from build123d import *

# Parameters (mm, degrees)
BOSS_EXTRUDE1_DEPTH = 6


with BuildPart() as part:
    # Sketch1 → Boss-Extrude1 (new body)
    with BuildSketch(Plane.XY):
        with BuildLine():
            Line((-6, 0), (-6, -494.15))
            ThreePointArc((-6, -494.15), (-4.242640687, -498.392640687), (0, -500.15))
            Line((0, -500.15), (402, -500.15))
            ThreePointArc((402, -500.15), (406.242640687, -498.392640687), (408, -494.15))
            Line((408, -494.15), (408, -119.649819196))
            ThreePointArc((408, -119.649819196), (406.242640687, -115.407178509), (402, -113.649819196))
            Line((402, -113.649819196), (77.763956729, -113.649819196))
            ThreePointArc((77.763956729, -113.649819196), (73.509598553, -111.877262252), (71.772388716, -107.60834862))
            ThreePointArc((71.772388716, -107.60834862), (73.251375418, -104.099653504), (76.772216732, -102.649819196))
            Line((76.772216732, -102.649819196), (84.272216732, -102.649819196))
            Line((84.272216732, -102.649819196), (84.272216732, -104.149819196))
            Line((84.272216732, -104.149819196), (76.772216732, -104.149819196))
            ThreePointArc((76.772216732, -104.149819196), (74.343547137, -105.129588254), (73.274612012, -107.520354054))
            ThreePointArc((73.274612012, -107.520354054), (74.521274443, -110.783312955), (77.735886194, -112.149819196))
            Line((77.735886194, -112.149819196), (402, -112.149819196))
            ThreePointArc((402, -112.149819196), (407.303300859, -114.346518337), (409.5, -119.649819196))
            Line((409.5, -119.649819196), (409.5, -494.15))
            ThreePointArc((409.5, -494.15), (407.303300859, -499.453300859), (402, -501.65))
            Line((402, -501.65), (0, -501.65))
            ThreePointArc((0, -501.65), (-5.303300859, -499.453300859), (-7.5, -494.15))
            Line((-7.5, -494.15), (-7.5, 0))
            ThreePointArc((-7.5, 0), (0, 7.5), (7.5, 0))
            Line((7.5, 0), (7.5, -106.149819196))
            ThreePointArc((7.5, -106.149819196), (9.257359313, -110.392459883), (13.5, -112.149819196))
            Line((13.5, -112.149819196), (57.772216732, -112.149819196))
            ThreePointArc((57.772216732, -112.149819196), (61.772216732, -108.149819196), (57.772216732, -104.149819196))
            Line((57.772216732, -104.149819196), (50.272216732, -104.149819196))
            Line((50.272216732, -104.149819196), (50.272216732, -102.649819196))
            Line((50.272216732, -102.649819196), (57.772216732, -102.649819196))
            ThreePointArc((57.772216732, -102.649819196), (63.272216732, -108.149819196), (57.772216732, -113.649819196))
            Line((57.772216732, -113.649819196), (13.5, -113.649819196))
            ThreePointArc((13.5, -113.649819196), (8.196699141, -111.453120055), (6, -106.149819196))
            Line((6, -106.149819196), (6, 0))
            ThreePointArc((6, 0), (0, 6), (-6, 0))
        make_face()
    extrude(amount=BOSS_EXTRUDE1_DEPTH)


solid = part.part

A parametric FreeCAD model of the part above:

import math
import FreeCAD as App
import Part
import Sketcher

V = App.Vector

doc = App.newDocument("Part")
body = doc.addObject("PartDesign::Body", "Body")

sketch1 = body.newObject("Sketcher::SketchObject", "Sketch")
sketch1.AttachmentSupport = (doc.getObject("XY_Plane"), [""])
sketch1.MapMode = "FlatFace"
sketch1.addGeometry([
    Part.LineSegment(V(-6, -494.15, 0), V(-6, 0, 0)),
    Part.ArcOfCircle(Part.Circle(V(0, 0, 0), V(0, 0, 1), 6), math.radians(0), math.radians(180)),
    Part.LineSegment(V(6, 0, 0), V(6, -106.149819, 0)),
    Part.ArcOfCircle(Part.Circle(V(13.5, -106.149819, 0), V(0, 0, 1), 7.5), math.radians(180), math.radians(270)),
    Part.LineSegment(V(13.5, -113.649819, 0), V(57.772217, -113.649819, 0)),
    Part.ArcOfCircle(Part.Circle(V(57.772217, -108.149819, 0), V(0, 0, 1), 5.5), math.radians(-90), math.radians(90)),
    Part.LineSegment(V(57.772217, -102.649819, 0), V(50.272217, -102.649819, 0)),
    Part.LineSegment(V(50.272217, -102.649819, 0), V(50.272217, -104.149819, 0)),
    Part.LineSegment(V(50.272217, -104.149819, 0), V(57.772217, -104.149819, 0)),
    Part.ArcOfCircle(Part.Circle(V(57.772217, -108.149819, 0), V(0, 0, 1), 4), math.radians(-90), math.radians(90)),
    Part.LineSegment(V(57.772217, -112.149819, 0), V(13.5, -112.149819, 0)),
    Part.ArcOfCircle(Part.Circle(V(13.5, -106.149819, 0), V(0, 0, 1), 6), math.radians(180), math.radians(270)),
    Part.LineSegment(V(7.5, -106.149819, 0), V(7.5, 0, 0)),
    Part.ArcOfCircle(Part.Circle(V(0, 0, 0), V(0, 0, 1), 7.5), math.radians(0), math.radians(180)),
    Part.LineSegment(V(-7.5, 0, 0), V(-7.5, -494.15, 0)),
    Part.ArcOfCircle(Part.Circle(V(0, -494.15, 0), V(0, 0, 1), 7.5), math.radians(180), math.radians(270)),
    Part.LineSegment(V(0, -501.65, 0), V(402, -501.65, 0)),
    Part.ArcOfCircle(Part.Circle(V(402, -494.15, 0), V(0, 0, 1), 7.5), math.radians(-90), math.radians(0)),
    Part.LineSegment(V(409.5, -494.15, 0), V(409.5, -119.649819, 0)),
    Part.ArcOfCircle(Part.Circle(V(402, -119.649819, 0), V(0, 0, 1), 7.5), math.radians(0), math.radians(90)),
    Part.LineSegment(V(402, -112.149819, 0), V(77.735886, -112.149819, 0)),
    Part.ArcOfCircle(Part.Circle(V(77.735886, -107.68549, 0), V(0, 0, 1), 4.464329), math.radians(177.880143), math.radians(270)),
    Part.ArcOfCircle(Part.Circle(V(76.772217, -107.649819, 0), V(0, 0, 1), 3.5), math.radians(90), math.radians(177.880143)),
    Part.LineSegment(V(76.772217, -104.149819, 0), V(84.272217, -104.149819, 0)),
    Part.LineSegment(V(84.272217, -104.149819, 0), V(84.272217, -102.649819, 0)),
    Part.LineSegment(V(84.272217, -102.649819, 0), V(76.772217, -102.649819, 0)),
    Part.ArcOfCircle(Part.Circle(V(76.772217, -107.649819, 0), V(0, 0, 1), 5), math.radians(90), math.radians(179.524777)),
    Part.ArcOfCircle(Part.Circle(V(77.763957, -107.658045, 0), V(0, 0, 1), 5.991774), math.radians(179.524777), math.radians(270)),
    Part.LineSegment(V(77.763957, -113.649819, 0), V(402, -113.649819, 0)),
    Part.ArcOfCircle(Part.Circle(V(402, -119.649819, 0), V(0, 0, 1), 6), math.radians(0), math.radians(90)),
    Part.LineSegment(V(408, -119.649819, 0), V(408, -494.15, 0)),
    Part.ArcOfCircle(Part.Circle(V(402, -494.15, 0), V(0, 0, 1), 6), math.radians(-90), math.radians(0)),
    Part.LineSegment(V(402, -500.15, 0), V(0, -500.15, 0)),
    Part.ArcOfCircle(Part.Circle(V(0, -494.15, 0), V(0, 0, 1), 6), math.radians(180), math.radians(270)),
], False)
sketch1.addConstraint([
    Sketcher.Constraint("Tangent", 0, 2, 1, 2),
    Sketcher.Constraint("Tangent", 1, 1, 2, 1),
    Sketcher.Constraint("Tangent", 2, 2, 3, 1),
    Sketcher.Constraint("Tangent", 3, 2, 4, 1),
    Sketcher.Constraint("Tangent", 4, 2, 5, 1),
    Sketcher.Constraint("Tangent", 5, 2, 6, 1),
    Sketcher.Constraint("Coincident", 6, 2, 7, 1),
    Sketcher.Constraint("Coincident", 7, 2, 8, 1),
    Sketcher.Constraint("Tangent", 8, 2, 9, 2),
    Sketcher.Constraint("Tangent", 9, 1, 10, 1),
    Sketcher.Constraint("Tangent", 10, 2, 11, 2),
    Sketcher.Constraint("Tangent", 11, 1, 12, 1),
    Sketcher.Constraint("Tangent", 12, 2, 13, 1),
    Sketcher.Constraint("Tangent", 13, 2, 14, 1),
    Sketcher.Constraint("Tangent", 14, 2, 15, 1),
    Sketcher.Constraint("Tangent", 15, 2, 16, 1),
    Sketcher.Constraint("Tangent", 16, 2, 17, 1),
    Sketcher.Constraint("Tangent", 17, 2, 18, 1),
    Sketcher.Constraint("Tangent", 18, 2, 19, 1),
    Sketcher.Constraint("Tangent", 19, 2, 20, 1),
    Sketcher.Constraint("Tangent", 20, 2, 21, 2),
    Sketcher.Constraint("Tangent", 21, 1, 22, 2),
    Sketcher.Constraint("Tangent", 22, 1, 23, 1),
    Sketcher.Constraint("Coincident", 23, 2, 24, 1),
    Sketcher.Constraint("Coincident", 24, 2, 25, 1),
    Sketcher.Constraint("Tangent", 25, 2, 26, 1),
    Sketcher.Constraint("Tangent", 26, 2, 27, 1),
    Sketcher.Constraint("Tangent", 27, 2, 28, 1),
    Sketcher.Constraint("Tangent", 28, 2, 29, 2),
    Sketcher.Constraint("Tangent", 29, 1, 30, 1),
    Sketcher.Constraint("Tangent", 30, 2, 31, 2),
    Sketcher.Constraint("Tangent", 31, 1, 32, 1),
    Sketcher.Constraint("Tangent", 32, 2, 33, 2),
    Sketcher.Constraint("Tangent", 33, 1, 0, 1),
    Sketcher.Constraint("Vertical", 0),
    Sketcher.Constraint("Vertical", 2),
    Sketcher.Constraint("Horizontal", 4),
    Sketcher.Constraint("Horizontal", 6),
    Sketcher.Constraint("Vertical", 7),
    Sketcher.Constraint("Horizontal", 8),
    Sketcher.Constraint("Horizontal", 10),
    Sketcher.Constraint("Vertical", 12),
    Sketcher.Constraint("Vertical", 14),
    Sketcher.Constraint("Horizontal", 16),
    Sketcher.Constraint("Vertical", 18),
    Sketcher.Constraint("Horizontal", 20),
    Sketcher.Constraint("Horizontal", 23),
    Sketcher.Constraint("Vertical", 24),
    Sketcher.Constraint("Horizontal", 25),
    Sketcher.Constraint("Horizontal", 28),
    Sketcher.Constraint("Vertical", 30),
    Sketcher.Constraint("Horizontal", 32),
    Sketcher.Constraint("Coincident", 1, 3, -1, 1),
    Sketcher.Constraint("Coincident", 13, 3, -1, 1),
    Sketcher.Constraint("Coincident", 9, 3, 5, 3),
    Sketcher.Constraint("Coincident", 11, 3, 3, 3),
    Sketcher.Constraint("Coincident", 26, 3, 22, 3),
    Sketcher.Constraint("Coincident", 29, 3, 19, 3),
    Sketcher.Constraint("Coincident", 31, 3, 17, 3),
    Sketcher.Constraint("Coincident", 33, 3, 15, 3),
    Sketcher.Constraint("Equal", 1, 11),
    Sketcher.Constraint("Equal", 13, 15),
    Sketcher.Constraint("Equal", 15, 17),
    Sketcher.Constraint("Equal", 17, 19),
    Sketcher.Constraint("Horizontal", 10, 2, 19, 2),
    Sketcher.Constraint("Horizontal", 8, 2, 22, 1),
    Sketcher.Constraint("Horizontal", 6, 2, 24, 2),
    Sketcher.Constraint("Equal", 8, 23),
    Sketcher.Constraint("Radius", 1, 6.0),
    Sketcher.Constraint("Radius", 9, 4.0),
    Sketcher.Constraint("Radius", 26, 5.0),
    Sketcher.Constraint("Radius", 3, 7.5),
    Sketcher.Constraint("DistanceX", 16, 1, 16, 2, 402.0),
    Sketcher.Constraint("DistanceX", 6, 2, 6, 1, 7.5),
    Sketcher.Constraint("DistanceX", 5, 3, 22, 3, 19.0),
    Sketcher.Constraint("DistanceY", 0, 1, 0, 2, 494.15),
    Sketcher.Constraint("Radius", 21, 4.464329),
    Sketcher.Constraint("Radius", 27, 5.991774),
    Sketcher.Constraint("DistanceY", 2, 2, 2, 1, 106.149819),
    Sketcher.Constraint("DistanceX", 4, 1, 4, 2, 44.272217),
])
pad1 = body.newObject("PartDesign::Pad", "Pad")
pad1.Profile = sketch1
pad1.Length = 6

doc.recompute()
